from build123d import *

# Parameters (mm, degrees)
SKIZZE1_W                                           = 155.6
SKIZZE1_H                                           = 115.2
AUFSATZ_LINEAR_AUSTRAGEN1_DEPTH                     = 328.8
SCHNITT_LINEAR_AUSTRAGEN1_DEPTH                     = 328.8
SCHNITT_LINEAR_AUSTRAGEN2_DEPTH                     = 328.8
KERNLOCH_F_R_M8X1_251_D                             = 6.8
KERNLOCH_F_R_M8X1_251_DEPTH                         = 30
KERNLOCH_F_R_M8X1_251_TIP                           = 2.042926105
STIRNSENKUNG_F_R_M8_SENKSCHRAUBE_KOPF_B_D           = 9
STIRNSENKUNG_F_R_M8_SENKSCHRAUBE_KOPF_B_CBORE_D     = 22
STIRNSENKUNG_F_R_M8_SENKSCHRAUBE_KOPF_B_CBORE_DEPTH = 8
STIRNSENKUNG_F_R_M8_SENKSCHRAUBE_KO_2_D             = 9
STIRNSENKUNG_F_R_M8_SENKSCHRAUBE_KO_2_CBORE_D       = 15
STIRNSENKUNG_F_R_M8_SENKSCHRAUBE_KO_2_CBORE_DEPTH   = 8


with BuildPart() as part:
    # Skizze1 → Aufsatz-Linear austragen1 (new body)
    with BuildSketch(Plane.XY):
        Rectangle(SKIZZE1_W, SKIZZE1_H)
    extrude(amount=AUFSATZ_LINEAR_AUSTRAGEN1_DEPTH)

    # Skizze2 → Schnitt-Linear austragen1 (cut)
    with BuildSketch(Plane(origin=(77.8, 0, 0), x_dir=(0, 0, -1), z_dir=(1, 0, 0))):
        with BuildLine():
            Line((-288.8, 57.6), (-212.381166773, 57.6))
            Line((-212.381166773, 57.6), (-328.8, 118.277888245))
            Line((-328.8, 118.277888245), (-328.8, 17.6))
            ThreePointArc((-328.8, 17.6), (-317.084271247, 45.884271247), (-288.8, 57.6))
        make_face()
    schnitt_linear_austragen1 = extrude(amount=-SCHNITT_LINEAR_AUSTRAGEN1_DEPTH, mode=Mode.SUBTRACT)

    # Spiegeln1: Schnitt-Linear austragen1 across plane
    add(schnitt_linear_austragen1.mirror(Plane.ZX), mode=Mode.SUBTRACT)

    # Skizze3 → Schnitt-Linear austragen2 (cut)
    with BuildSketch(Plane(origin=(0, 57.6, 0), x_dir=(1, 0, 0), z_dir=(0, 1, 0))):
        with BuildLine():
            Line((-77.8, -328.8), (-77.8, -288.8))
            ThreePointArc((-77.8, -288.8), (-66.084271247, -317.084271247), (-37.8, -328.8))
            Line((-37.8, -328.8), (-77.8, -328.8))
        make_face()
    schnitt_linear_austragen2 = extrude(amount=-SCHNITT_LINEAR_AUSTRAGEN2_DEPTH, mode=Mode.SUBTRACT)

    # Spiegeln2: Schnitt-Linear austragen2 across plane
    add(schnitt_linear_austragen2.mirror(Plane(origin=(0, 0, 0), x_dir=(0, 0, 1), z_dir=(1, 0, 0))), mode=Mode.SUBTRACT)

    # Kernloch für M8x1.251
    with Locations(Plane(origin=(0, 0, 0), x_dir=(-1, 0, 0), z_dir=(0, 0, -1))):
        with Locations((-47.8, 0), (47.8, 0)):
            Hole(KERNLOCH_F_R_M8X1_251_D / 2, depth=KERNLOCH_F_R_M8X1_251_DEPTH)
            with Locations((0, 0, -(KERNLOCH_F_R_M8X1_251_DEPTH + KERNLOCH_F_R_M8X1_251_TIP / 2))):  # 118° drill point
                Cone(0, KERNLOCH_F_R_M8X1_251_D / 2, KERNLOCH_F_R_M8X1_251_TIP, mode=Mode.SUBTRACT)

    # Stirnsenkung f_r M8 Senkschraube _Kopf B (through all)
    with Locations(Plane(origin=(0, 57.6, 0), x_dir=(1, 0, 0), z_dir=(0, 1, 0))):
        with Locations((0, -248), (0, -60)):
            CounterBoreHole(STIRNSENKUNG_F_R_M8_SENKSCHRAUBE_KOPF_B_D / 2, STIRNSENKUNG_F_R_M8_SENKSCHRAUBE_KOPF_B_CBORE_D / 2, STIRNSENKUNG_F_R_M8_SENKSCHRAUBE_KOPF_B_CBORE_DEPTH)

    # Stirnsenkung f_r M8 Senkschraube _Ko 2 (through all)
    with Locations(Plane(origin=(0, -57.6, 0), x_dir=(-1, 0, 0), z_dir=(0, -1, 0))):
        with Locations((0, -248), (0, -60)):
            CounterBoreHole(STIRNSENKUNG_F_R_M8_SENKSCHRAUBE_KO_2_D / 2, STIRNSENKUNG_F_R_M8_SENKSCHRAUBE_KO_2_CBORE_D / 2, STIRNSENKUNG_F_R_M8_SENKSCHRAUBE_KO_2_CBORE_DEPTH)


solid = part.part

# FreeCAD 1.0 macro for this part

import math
import FreeCAD as App
import Part
import Sketcher

V = App.Vector


def add_polygon(sketch, points):
    """Adds a closed chain of lines whose ends are joined by coincident constraints."""
    first, n = sketch.GeometryCount, len(points)
    for a, b in zip(points, points[1:] + points[:1]):
        sketch.addGeometry(Part.LineSegment(App.Vector(*a, 0), App.Vector(*b, 0)), False)
    for i in range(n):
        sketch.addConstraint(Sketcher.Constraint("Coincident", first + i, 2, first + (i + 1) % n, 1))

doc = App.newDocument("Part")
body = doc.addObject("PartDesign::Body", "Body")

sketch1 = body.newObject("Sketcher::SketchObject", "Sketch")
sketch1.AttachmentSupport = (doc.getObject("XY_Plane"), [""])
sketch1.MapMode = "FlatFace"
add_polygon(sketch1, [(-78, 58), (-78, -58), (78, -58), (78, 58)])
sketch1.addConstraint(Sketcher.Constraint("Vertical", 0))
sketch1.addConstraint(Sketcher.Constraint("Horizontal", 1))
sketch1.addConstraint(Sketcher.Constraint("Vertical", 2))
sketch1.addConstraint(Sketcher.Constraint("Horizontal", 3))
sketch1.addConstraint(Sketcher.Constraint("Symmetric", 0, 2, 2, 2, -1, 1))
sketch1.addConstraint(Sketcher.Constraint("DistanceX", 1, 1, 1, 2, 155.6))
sketch1.addConstraint(Sketcher.Constraint("DistanceY", 0, 2, 0, 1, 115.2))
pad1 = body.newObject("PartDesign::Pad", "Pad")
pad1.Profile = sketch1
pad1.Length = 328.8

sketch2 = body.newObject("Sketcher::SketchObject", "Sketch001")
sketch2.AttachmentSupport = (doc.getObject("YZ_Plane"), [""])
sketch2.MapMode = "FlatFace"
sketch2.AttachmentOffset = App.Placement(V(0, 0, 77.8), App.Rotation())
sketch2.addGeometry(Part.LineSegment(V(58, 289, 0), V(58, 212, 0)), False)
sketch2.addGeometry(Part.LineSegment(V(58, 212, 0), V(118, 329, 0)), False)
sketch2.addGeometry(Part.LineSegment(V(118, 329, 0), V(18, 329, 0)), False)
sketch2.addGeometry(Part.ArcOfCircle(Part.Circle(V(18, 289, 0), V(0, 0, 1), 40), math.radians(0), math.radians(90)), False)
sketch2.addConstraint(Sketcher.Constraint("Coincident", 0, 2, 1, 1))
sketch2.addConstraint(Sketcher.Constraint("Coincident", 1, 2, 2, 1))
sketch2.addConstraint(Sketcher.Constraint("Tangent", 2, 2, 3, 2))
sketch2.addConstraint(Sketcher.Constraint("Tangent", 3, 1, 0, 1))
sketch2.addConstraint(Sketcher.Constraint("Vertical", 0))
sketch2.addConstraint(Sketcher.Constraint("Horizontal", 2))
sketch2.addConstraint(Sketcher.Constraint("Radius", 3, 40.0))
sketch2.addConstraint(Sketcher.Constraint("DistanceX", -1, 1, 3, 3, 17.6))
sketch2.addConstraint(Sketcher.Constraint("DistanceY", -1, 1, 3, 3, 288.8))
sketch2.addConstraint(Sketcher.Constraint("DistanceX", 2, 2, 2, 1, 100.677888))
sketch2.addConstraint(Sketcher.Constraint("DistanceY", 0, 2, 0, 1, 76.418833))
pocket1 = body.newObject("PartDesign::Pocket", "Pocket")
pocket1.Profile = sketch2
pocket1.Length = 328.8
doc.recompute()

mirrored = body.newObject("PartDesign::Mirrored", "Mirrored")
mirrored.Originals = [pocket1]
mirrored.MirrorPlane = (doc.getObject("XZ_Plane"), [""])
body.Tip = mirrored

sketch3 = body.newObject("Sketcher::SketchObject", "Sketch002")
sketch3.AttachmentSupport = (doc.getObject("XZ_Plane"), [""])
sketch3.MapMode = "FlatFace"
sketch3.AttachmentOffset = App.Placement(V(0, 0, -57.6), App.Rotation())
sketch3.addGeometry(Part.LineSegment(V(-78, 289, 0), V(-78, 329, 0)), False)
sketch3.addGeometry(Part.LineSegment(V(-78, 329, 0), V(-38, 329, 0)), False)
sketch3.addGeometry(Part.ArcOfCircle(Part.Circle(V(-38, 289, 0), V(0, 0, 1), 40), math.radians(90), math.radians(180)), False)
sketch3.addConstraint(Sketcher.Constraint("Coincident", 0, 2, 1, 1))
sketch3.addConstraint(Sketcher.Constraint("Tangent", 1, 2, 2, 1))
sketch3.addConstraint(Sketcher.Constraint("Tangent", 2, 2, 0, 1))
sketch3.addConstraint(Sketcher.Constraint("Vertical", 0))
sketch3.addConstraint(Sketcher.Constraint("Horizontal", 1))
sketch3.addConstraint(Sketcher.Constraint("Radius", 2, 40.0))
sketch3.addConstraint(Sketcher.Constraint("DistanceX", 2, 3, -1, 1, 37.8))
sketch3.addConstraint(Sketcher.Constraint("DistanceY", -1, 1, 2, 3, 288.8))
pocket2 = body.newObject("PartDesign::Pocket", "Pocket001")
pocket2.Profile = sketch3
pocket2.Length = 328.8
pocket2.Reversed = True
doc.recompute()

mirrored2 = body.newObject("PartDesign::Mirrored", "Mirrored001")
mirrored2.Originals = [pocket2]
mirrored2.MirrorPlane = (doc.getObject("YZ_Plane"), [""])
body.Tip = mirrored2

sketch4 = body.newObject("Sketcher::SketchObject", "Sketch003")
sketch4.AttachmentSupport = (doc.getObject("XY_Plane"), [""])
sketch4.MapMode = "FlatFace"
sketch4.addGeometry(Part.Circle(V(47.8, 0, 0), V(0, 0, 1), 3.4), False)
sketch4.addGeometry(Part.Circle(V(-47.8, 0, 0), V(0, 0, 1), 3.4), False)
sketch4.addConstraint(Sketcher.Constraint("Equal", 0, 1))
sketch4.addConstraint(Sketcher.Constraint("Symmetric", 0, 3, 1, 3, -1, 1))
sketch4.addConstraint(Sketcher.Constraint("PointOnObject", 0, 3, -1))
sketch4.addConstraint(Sketcher.Constraint("Diameter", 0, 6.8))
sketch4.addConstraint(Sketcher.Constraint("DistanceX", -1, 1, 0, 3, 47.8))
doc.recompute()
hole = body.newObject("PartDesign::Hole", "Hole")
hole.Profile = sketch4
hole.ThreadType = "None"
hole.Diameter = 6.8
hole.DepthType = "Dimension"
hole.Depth = 30
hole.DrillPoint = "Angled"
hole.DrillPointAngle = 118
hole.Reversed = True

sketch5 = body.newObject("Sketcher::SketchObject", "Sketch004")
sketch5.AttachmentSupport = (doc.getObject("XZ_Plane"), [""])
sketch5.MapMode = "FlatFace"
sketch5.AttachmentOffset = App.Placement(V(0, 0, -57.6), App.Rotation())
sketch5.addGeometry(Part.Circle(V(0, 248, 0), V(0, 0, 1), 4.5), False)
sketch5.addGeometry(Part.Circle(V(0, 60, 0), V(0, 0, 1), 4.5), False)
sketch5.addConstraint(Sketcher.Constraint("Equal", 0, 1))
sketch5.addConstraint(Sketcher.Constraint("PointOnObject", 0, 3, -2))
sketch5.addConstraint(Sketcher.Constraint("PointOnObject", 1, 3, -2))
sketch5.addConstraint(Sketcher.Constraint("Diameter", 0, 9.0))
sketch5.addConstraint(Sketcher.Constraint("DistanceY", -1, 1, 0, 3, 248.0))
sketch5.addConstraint(Sketcher.Constraint("DistanceY", -1, 1, 1, 3, 60.0))
doc.recompute()
hole2 = body.newObject("PartDesign::Hole", "Hole001")
hole2.Profile = sketch5
hole2.ThreadType = "None"
hole2.Diameter = 9
hole2.DepthType = "ThroughAll"
hole2.HoleCutType = "Counterbore"
hole2.HoleCutDiameter = 22
hole2.HoleCutDepth = 8
hole2.Reversed = True

sketch6 = body.newObject("Sketcher::SketchObject", "Sketch005")
sketch6.AttachmentSupport = (doc.getObject("XZ_Plane"), [""])
sketch6.MapMode = "FlatFace"
sketch6.AttachmentOffset = App.Placement(V(0, 0, 57.6), App.Rotation())
sketch6.addGeometry(Part.Circle(V(0, 248, 0), V(0, 0, 1), 4.5), False)
sketch6.addGeometry(Part.Circle(V(0, 60, 0), V(0, 0, 1), 4.5), False)
sketch6.addConstraint(Sketcher.Constraint("Equal", 0, 1))
sketch6.addConstraint(Sketcher.Constraint("PointOnObject", 0, 3, -2))
sketch6.addConstraint(Sketcher.Constraint("PointOnObject", 1, 3, -2))
sketch6.addConstraint(Sketcher.Constraint("Diameter", 0, 9.0))
sketch6.addConstraint(Sketcher.Constraint("DistanceY", -1, 1, 0, 3, 248.0))
sketch6.addConstraint(Sketcher.Constraint("DistanceY", -1, 1, 1, 3, 60.0))
doc.recompute()
hole3 = body.newObject("PartDesign::Hole", "Hole002")
hole3.Profile = sketch6
hole3.ThreadType = "None"
hole3.Diameter = 9
hole3.DepthType = "ThroughAll"
hole3.HoleCutType = "Counterbore"
hole3.HoleCutDiameter = 15
hole3.HoleCutDepth = 8

doc.recompute()
